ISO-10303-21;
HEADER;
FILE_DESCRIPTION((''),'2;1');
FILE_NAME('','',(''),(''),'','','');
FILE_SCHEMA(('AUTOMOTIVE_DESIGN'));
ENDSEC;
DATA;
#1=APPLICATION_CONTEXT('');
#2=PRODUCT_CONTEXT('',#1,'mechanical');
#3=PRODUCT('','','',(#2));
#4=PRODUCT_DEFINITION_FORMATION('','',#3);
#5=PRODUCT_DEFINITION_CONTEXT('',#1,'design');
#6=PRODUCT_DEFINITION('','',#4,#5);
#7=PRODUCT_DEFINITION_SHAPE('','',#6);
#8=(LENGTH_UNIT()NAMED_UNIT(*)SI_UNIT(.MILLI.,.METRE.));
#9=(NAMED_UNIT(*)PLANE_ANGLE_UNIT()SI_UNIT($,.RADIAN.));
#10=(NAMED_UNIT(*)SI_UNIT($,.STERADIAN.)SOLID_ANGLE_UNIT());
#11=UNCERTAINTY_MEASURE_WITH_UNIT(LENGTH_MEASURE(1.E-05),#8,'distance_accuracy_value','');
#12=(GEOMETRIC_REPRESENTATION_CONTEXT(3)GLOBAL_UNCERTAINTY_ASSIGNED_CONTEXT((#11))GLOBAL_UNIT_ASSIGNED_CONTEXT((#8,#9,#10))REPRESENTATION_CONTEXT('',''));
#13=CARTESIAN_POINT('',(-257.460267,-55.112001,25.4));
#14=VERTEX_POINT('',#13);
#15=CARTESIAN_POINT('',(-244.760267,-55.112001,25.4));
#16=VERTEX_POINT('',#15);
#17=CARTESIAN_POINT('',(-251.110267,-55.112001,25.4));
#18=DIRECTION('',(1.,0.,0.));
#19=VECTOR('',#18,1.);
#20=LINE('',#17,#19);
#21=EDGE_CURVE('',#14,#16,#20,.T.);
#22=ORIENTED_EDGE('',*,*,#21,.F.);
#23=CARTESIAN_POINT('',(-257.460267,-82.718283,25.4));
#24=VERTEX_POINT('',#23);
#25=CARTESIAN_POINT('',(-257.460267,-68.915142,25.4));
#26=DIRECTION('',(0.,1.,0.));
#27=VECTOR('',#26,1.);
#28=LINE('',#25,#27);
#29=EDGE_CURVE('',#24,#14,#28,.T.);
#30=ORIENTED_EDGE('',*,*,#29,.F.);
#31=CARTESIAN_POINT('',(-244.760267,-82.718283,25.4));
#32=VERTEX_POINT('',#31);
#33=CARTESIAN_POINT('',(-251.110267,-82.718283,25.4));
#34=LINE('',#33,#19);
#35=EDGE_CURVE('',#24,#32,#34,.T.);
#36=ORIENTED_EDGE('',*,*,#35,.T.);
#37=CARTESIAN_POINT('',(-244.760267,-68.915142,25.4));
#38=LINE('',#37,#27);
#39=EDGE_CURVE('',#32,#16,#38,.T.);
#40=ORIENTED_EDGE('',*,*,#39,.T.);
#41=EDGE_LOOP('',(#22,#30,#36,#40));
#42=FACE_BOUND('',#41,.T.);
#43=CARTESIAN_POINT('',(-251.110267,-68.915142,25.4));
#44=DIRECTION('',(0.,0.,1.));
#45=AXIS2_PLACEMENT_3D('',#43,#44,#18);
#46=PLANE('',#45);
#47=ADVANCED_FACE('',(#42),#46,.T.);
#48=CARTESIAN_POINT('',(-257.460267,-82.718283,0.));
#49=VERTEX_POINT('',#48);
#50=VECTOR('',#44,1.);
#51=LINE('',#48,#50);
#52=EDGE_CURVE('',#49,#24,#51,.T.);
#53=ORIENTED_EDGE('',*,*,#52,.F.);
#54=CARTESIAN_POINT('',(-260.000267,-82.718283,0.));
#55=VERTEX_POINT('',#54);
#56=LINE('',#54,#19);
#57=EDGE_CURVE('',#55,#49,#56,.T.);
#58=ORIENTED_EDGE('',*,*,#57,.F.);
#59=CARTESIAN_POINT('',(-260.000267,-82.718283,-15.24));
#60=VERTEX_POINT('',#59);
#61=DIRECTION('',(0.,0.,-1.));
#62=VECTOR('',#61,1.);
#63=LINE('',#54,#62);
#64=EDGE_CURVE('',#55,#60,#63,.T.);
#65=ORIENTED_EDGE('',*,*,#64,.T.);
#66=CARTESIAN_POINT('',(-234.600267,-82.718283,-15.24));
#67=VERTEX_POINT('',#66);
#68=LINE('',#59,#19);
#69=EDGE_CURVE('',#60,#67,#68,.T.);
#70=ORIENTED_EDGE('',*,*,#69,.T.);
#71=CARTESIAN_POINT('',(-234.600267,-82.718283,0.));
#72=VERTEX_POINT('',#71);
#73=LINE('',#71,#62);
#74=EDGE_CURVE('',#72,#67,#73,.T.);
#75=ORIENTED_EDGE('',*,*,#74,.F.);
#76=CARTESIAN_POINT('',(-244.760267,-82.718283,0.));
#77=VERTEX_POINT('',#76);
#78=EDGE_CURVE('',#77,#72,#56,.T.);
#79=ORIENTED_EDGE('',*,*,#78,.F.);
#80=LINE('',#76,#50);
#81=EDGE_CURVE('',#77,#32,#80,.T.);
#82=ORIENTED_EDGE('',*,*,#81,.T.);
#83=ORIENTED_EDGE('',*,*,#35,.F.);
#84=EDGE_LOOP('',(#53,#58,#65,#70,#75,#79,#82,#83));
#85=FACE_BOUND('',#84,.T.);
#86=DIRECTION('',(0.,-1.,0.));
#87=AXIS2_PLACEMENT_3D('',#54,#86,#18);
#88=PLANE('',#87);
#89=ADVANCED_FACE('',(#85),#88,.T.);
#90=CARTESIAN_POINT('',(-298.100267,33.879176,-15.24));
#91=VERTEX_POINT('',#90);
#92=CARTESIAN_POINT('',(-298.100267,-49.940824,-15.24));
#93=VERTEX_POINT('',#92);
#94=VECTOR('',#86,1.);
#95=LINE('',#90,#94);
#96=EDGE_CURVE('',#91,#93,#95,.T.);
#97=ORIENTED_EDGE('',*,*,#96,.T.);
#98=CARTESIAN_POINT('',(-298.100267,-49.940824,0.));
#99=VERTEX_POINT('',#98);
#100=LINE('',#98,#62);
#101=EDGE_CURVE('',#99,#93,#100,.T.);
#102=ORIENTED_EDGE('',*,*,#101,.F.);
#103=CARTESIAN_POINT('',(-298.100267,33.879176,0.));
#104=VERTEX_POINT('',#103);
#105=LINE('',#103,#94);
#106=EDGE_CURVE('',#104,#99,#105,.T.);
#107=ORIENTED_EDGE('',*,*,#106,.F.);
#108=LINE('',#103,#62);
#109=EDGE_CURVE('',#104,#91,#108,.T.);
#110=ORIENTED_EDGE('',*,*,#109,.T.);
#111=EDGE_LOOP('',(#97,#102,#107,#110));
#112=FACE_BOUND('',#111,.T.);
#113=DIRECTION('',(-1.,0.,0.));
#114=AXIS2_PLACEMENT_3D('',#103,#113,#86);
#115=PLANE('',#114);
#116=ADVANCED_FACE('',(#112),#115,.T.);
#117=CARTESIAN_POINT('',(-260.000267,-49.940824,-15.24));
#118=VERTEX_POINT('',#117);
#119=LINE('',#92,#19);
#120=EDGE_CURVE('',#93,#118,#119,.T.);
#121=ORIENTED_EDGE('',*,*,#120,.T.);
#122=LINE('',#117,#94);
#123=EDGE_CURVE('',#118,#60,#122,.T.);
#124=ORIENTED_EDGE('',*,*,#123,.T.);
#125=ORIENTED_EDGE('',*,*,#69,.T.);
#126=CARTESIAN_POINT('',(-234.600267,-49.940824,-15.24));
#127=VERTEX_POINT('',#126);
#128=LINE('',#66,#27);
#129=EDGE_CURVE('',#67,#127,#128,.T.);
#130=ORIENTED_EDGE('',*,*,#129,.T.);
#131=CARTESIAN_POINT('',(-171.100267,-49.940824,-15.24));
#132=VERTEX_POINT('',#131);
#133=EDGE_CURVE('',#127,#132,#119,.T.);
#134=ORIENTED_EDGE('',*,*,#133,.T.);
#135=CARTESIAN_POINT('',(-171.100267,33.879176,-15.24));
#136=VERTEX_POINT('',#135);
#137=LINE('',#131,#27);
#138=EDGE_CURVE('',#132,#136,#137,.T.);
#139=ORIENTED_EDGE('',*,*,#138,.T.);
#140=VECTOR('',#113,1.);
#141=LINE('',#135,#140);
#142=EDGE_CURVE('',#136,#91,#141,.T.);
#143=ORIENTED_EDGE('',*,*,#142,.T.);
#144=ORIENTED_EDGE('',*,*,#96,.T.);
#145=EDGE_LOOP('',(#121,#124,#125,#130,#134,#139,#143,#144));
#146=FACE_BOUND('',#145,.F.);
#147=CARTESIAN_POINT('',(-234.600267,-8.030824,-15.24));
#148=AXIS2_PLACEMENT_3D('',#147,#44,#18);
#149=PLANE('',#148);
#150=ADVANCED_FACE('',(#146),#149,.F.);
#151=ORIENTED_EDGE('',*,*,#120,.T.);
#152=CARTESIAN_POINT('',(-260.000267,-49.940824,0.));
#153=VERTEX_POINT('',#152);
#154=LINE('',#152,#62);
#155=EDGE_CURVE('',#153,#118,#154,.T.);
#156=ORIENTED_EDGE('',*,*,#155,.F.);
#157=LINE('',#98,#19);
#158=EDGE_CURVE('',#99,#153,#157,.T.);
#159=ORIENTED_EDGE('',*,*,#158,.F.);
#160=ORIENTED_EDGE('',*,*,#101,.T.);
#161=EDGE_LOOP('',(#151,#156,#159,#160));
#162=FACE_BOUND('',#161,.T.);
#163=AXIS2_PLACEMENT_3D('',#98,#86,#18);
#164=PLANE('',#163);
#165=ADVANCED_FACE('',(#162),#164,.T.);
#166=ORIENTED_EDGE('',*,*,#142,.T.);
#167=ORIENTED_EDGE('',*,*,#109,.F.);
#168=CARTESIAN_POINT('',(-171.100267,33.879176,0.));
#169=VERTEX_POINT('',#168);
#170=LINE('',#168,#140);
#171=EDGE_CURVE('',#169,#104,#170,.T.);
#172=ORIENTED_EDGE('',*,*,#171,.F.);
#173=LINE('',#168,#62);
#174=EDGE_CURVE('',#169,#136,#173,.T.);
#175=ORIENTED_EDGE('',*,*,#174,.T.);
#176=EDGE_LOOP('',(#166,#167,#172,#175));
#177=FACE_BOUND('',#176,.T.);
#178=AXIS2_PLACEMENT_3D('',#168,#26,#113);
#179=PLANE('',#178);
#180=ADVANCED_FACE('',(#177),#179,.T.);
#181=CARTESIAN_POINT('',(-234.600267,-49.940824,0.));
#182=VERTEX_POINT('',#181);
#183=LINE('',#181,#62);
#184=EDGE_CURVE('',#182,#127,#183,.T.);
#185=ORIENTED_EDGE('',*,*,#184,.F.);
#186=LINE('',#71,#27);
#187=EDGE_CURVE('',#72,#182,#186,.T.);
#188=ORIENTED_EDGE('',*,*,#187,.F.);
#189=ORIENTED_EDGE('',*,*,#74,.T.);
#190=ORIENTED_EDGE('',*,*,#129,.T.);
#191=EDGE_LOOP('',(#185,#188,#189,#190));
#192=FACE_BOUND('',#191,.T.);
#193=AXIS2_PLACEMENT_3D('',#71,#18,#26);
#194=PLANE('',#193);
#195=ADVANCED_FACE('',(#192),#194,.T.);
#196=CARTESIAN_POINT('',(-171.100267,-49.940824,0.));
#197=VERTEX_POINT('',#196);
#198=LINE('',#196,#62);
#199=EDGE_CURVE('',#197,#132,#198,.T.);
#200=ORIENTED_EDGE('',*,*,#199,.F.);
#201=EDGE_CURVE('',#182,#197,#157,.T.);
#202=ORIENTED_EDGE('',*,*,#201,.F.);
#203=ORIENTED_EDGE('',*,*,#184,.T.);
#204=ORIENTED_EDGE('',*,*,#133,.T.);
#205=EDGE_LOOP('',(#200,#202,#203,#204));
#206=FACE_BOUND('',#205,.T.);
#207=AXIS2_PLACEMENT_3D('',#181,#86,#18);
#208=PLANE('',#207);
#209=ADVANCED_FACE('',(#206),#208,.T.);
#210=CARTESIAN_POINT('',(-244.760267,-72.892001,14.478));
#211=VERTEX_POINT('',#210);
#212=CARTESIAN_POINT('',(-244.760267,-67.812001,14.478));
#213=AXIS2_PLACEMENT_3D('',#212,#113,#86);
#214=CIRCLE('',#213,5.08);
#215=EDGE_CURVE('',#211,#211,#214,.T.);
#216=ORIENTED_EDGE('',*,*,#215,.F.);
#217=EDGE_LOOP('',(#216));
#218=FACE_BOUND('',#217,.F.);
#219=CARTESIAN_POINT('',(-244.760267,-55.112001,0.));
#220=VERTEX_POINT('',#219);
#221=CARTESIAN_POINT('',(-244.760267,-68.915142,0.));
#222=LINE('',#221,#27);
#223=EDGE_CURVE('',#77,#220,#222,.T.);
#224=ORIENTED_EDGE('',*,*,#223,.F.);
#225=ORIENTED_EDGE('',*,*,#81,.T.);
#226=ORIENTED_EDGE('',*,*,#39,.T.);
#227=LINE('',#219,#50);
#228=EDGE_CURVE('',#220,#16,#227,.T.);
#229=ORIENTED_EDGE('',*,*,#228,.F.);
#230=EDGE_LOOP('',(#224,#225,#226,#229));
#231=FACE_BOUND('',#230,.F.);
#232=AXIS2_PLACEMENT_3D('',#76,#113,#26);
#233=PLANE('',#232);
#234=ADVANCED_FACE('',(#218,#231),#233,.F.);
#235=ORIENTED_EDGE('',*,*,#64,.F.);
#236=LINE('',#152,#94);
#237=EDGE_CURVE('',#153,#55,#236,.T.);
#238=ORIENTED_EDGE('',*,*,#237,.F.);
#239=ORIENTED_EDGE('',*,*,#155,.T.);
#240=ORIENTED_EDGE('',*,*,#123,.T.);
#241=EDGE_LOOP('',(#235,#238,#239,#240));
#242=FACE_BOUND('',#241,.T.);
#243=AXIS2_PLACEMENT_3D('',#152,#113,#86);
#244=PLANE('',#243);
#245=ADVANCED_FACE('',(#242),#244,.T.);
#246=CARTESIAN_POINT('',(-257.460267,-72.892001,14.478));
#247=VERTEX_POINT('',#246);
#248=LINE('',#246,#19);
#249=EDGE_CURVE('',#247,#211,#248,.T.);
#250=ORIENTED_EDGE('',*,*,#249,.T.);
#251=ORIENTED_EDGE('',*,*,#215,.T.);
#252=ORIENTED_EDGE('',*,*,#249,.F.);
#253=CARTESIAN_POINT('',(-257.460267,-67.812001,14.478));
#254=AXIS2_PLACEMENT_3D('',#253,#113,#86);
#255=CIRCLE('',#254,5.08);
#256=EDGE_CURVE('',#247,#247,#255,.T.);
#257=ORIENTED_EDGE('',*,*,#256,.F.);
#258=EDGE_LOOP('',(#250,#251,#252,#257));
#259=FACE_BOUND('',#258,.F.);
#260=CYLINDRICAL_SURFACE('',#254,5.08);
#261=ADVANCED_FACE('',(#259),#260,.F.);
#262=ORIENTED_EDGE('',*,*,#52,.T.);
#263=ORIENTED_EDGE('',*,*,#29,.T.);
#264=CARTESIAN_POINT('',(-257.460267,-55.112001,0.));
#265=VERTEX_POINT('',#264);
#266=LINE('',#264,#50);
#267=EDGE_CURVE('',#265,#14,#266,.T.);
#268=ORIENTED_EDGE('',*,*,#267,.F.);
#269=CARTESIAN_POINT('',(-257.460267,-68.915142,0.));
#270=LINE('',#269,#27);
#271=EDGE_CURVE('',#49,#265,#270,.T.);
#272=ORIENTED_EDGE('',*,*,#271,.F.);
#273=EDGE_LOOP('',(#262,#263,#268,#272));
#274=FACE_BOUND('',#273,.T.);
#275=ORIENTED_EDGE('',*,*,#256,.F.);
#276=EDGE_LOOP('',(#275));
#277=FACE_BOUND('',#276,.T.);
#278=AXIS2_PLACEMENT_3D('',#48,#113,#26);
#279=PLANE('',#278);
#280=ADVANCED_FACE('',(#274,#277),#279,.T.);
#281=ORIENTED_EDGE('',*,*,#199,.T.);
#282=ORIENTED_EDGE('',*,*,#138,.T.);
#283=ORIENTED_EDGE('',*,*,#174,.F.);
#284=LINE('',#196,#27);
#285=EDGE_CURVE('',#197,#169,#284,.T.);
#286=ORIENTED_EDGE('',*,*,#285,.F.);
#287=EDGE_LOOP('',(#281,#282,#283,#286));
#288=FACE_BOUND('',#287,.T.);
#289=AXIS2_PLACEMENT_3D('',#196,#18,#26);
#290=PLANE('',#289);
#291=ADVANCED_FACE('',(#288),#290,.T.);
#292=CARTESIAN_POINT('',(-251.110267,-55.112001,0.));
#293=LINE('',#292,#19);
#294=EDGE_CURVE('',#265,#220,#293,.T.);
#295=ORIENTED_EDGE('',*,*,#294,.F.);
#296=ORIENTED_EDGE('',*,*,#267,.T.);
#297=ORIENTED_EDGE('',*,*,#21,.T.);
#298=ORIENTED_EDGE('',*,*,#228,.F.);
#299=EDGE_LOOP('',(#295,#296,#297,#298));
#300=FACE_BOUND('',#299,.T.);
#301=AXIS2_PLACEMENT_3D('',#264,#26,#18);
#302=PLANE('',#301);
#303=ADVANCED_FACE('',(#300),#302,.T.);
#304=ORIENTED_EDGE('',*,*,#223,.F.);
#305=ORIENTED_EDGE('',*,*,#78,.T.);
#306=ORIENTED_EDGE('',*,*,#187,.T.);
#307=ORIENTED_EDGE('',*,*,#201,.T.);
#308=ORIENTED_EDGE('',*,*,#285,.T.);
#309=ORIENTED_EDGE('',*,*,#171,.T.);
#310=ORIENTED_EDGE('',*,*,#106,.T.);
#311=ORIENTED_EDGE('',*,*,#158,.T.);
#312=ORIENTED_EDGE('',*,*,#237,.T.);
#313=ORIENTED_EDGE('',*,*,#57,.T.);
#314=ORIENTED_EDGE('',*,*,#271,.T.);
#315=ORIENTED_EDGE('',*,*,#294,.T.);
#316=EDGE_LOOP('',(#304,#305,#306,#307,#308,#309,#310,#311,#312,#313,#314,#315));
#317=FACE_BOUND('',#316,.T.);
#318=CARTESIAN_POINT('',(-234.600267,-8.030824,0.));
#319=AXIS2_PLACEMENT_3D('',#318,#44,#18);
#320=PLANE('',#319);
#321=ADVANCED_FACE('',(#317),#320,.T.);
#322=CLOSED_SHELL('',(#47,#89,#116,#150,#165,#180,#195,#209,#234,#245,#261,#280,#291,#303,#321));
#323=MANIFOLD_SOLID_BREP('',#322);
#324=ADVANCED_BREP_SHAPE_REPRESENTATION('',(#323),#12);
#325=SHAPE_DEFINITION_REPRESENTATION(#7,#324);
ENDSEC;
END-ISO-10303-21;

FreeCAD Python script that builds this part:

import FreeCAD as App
import Part
import Sketcher
Q = App.Units.Quantity

doc = App.newDocument("Part")
body = doc.addObject("PartDesign::Body", "Body")

# Sketch on XY plane
sketch1 = body.newObject("Sketcher::SketchObject", "Sketch")
sketch1.AttachmentSupport = (doc.getObject("XY_Plane"), [""])
sketch1.MapMode = "FlatFace"
sketch1.addGeometry([
    Part.LineSegment(App.Vector(-257, -55, 0), App.Vector(-257, -83, 0)),
    Part.LineSegment(App.Vector(-257, -83, 0), App.Vector(-245, -83, 0)),
    Part.LineSegment(App.Vector(-245, -83, 0), App.Vector(-245, -55, 0)),
    Part.LineSegment(App.Vector(-245, -55, 0), App.Vector(-257, -55, 0)),
], False)
sketch1.addConstraint([
    Sketcher.Constraint("Coincident", 0, 2, 1, 1),
    Sketcher.Constraint("Coincident", 1, 2, 2, 1),
    Sketcher.Constraint("Coincident", 2, 2, 3, 1),
    Sketcher.Constraint("Coincident", 3, 2, 0, 1),
    Sketcher.Constraint("Vertical", 0),
    Sketcher.Constraint("Horizontal", 1),
    Sketcher.Constraint("Vertical", 2),
    Sketcher.Constraint("Horizontal", 3),
    Sketcher.Constraint("DistanceX", 1, 1, 1, 2, Q("0.5 in")),
    Sketcher.Constraint("DistanceY", 0, 2, 0, 1, Q("27.606282 mm")),
    Sketcher.Constraint("DistanceY", 2, 2, -1, 1, Q("55.112001 mm")),
    Sketcher.Constraint("DistanceX", 0, 2, -1, 1, Q("257.460267 mm")),
])
pad1 = body.newObject("PartDesign::Pad", "Pad")
pad1.Profile = sketch1
pad1.Length = Q("1 in")

# Sketch on XY plane
sketch2 = body.newObject("Sketcher::SketchObject", "Sketch001")
sketch2.AttachmentSupport = (doc.getObject("XY_Plane"), [""])
sketch2.MapMode = "FlatFace"
sketch2.addGeometry([
    Part.LineSegment(App.Vector(-171, 34, 0), App.Vector(-298, 34, 0)),  # 0
    Part.LineSegment(App.Vector(-298, 34, 0), App.Vector(-298, -50, 0)),  # 1
    Part.LineSegment(App.Vector(-298, -50, 0), App.Vector(-260, -50, 0)),  # 2
    Part.LineSegment(App.Vector(-260, -50, 0), App.Vector(-260, -83, 0)),  # 3
    Part.LineSegment(App.Vector(-260, -83, 0), App.Vector(-235, -83, 0)),  # 4
    Part.LineSegment(App.Vector(-235, -83, 0), App.Vector(-235, -50, 0)),  # 5
    Part.LineSegment(App.Vector(-235, -50, 0), App.Vector(-171, -50, 0)),  # 6
    Part.LineSegment(App.Vector(-171, -50, 0), App.Vector(-171, 34, 0)),  # 7
], False)
sketch2.addConstraint([
    Sketcher.Constraint("Coincident", 0, 2, 1, 1),
    Sketcher.Constraint("Coincident", 1, 2, 2, 1),
    Sketcher.Constraint("Coincident", 2, 2, 3, 1),
    Sketcher.Constraint("Coincident", 3, 2, 4, 1),
    Sketcher.Constraint("Coincident", 4, 2, 5, 1),
    Sketcher.Constraint("Coincident", 5, 2, 6, 1),
    Sketcher.Constraint("Coincident", 6, 2, 7, 1),
    Sketcher.Constraint("Coincident", 7, 2, 0, 1),
    Sketcher.Constraint("Horizontal", 0),
    Sketcher.Constraint("Vertical", 1),
    Sketcher.Constraint("Horizontal", 2),
    Sketcher.Constraint("Vertical", 3),
    Sketcher.Constraint("Horizontal", 4),
    Sketcher.Constraint("Vertical", 5),
    Sketcher.Constraint("Horizontal", 6),
    Sketcher.Constraint("Vertical", 7),
    Sketcher.Constraint("Horizontal", 2, 2, 5, 2),
    Sketcher.Constraint("DistanceX", 0, 2, 0, 1, Q("5 in")),
    Sketcher.Constraint("DistanceX", 4, 1, 4, 2, Q("1 in")),
    Sketcher.Constraint("DistanceX", 2, 1, 2, 2, Q("1.5 in")),
    Sketcher.Constraint("DistanceY", 1, 2, 1, 1, Q("3.3 in")),
    Sketcher.Constraint("DistanceY", 3, 2, 3, 1, Q("32.777459 mm")),
    Sketcher.Constraint("DistanceX", 0, 2, -1, 1, Q("298.100267 mm")),
    Sketcher.Constraint("DistanceY", -1, 1, 0, 2, Q("33.879176 mm")),
])
pad2 = body.newObject("PartDesign::Pad", "Pad001")
pad2.Profile = sketch2
pad2.Length = Q("0.6 in")
pad2.Reversed = True

# Sketch on YZ plane
sketch3 = body.newObject("Sketcher::SketchObject", "Sketch002")
sketch3.AttachmentSupport = (doc.getObject("YZ_Plane"), [""])
sketch3.MapMode = "FlatFace"
sketch3.AttachmentOffset = App.Placement(App.Vector(0, 0, -257.460267), App.Rotation())
sketch3.addGeometry(Part.Circle(App.Vector(-68, 14, 0), App.Vector(0, 0, 1), 5), False)
sketch3.addConstraint([
    Sketcher.Constraint("Diameter", 0, Q("0.4 in")),
    Sketcher.Constraint("DistanceY", -1, 1, 0, 3, Q("0.57 in")),
    Sketcher.Constraint("DistanceX", 0, 3, -1, 1, Q("67.812001 mm")),
])
pocket1 = body.newObject("PartDesign::Pocket", "Pocket")
pocket1.Profile = sketch3
pocket1.Length = Q("1 in")
pocket1.Reversed = True

doc.recompute()
